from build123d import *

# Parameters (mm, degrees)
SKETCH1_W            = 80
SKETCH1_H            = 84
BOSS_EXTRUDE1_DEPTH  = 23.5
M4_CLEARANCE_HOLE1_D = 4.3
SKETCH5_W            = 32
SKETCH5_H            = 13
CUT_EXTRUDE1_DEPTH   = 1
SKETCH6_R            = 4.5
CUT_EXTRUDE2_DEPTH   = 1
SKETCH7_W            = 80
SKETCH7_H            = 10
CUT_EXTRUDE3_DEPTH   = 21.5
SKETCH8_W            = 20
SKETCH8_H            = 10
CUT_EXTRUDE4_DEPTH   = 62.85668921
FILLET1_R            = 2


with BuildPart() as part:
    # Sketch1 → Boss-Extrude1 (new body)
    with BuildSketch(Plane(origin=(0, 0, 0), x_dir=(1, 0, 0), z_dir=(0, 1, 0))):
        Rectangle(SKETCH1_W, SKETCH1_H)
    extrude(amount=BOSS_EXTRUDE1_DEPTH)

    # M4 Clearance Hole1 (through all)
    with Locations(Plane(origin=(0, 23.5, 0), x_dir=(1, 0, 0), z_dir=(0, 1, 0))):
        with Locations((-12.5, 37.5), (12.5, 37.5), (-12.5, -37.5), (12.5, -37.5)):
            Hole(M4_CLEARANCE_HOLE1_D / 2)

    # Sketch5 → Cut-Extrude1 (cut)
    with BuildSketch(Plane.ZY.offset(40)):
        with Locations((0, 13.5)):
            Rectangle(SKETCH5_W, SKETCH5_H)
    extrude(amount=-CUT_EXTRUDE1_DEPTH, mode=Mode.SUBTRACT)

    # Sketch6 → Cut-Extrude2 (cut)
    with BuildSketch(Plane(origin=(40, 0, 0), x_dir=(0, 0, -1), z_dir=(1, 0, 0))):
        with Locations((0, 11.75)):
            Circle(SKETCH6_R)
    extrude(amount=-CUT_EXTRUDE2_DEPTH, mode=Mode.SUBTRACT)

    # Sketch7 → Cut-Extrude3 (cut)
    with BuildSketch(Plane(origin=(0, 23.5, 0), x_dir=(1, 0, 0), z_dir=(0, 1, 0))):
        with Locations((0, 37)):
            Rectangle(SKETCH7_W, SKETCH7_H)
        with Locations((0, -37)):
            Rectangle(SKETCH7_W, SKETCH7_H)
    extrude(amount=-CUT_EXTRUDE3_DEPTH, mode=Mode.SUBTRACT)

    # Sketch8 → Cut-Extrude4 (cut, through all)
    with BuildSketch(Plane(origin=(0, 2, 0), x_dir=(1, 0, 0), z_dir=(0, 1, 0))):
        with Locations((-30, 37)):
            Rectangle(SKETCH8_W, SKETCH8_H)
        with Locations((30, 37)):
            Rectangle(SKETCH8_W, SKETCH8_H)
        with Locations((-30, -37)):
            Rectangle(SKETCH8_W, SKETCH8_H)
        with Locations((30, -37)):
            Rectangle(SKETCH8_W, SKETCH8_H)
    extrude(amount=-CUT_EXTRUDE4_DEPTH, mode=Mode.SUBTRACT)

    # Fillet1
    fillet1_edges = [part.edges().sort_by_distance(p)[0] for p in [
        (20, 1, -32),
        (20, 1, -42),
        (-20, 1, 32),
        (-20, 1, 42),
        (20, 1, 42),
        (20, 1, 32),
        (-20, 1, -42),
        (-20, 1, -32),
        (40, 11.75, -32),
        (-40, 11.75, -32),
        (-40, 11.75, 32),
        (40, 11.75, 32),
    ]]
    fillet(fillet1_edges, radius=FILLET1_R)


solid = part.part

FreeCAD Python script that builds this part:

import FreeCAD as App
import Part
import Sketcher

V = App.Vector
Q = App.Units.Quantity


def edges_at(feature, points):
    """Names of the edges that pass closest to the given points."""
    edges = feature.Shape.Edges
    near = lambda p: min(range(len(edges)), key=lambda i: edges[i].distToShape(Part.Vertex(*p))[0])
    return sorted({f"Edge{near(p) + 1}" for p in points})


def add_polygon(sketch, points):
    """Adds a closed chain of lines whose ends are joined by coincident constraints."""
    first, n = sketch.GeometryCount, len(points)
    for a, b in zip(points, points[1:] + points[:1]):
        sketch.addGeometry(Part.LineSegment(App.Vector(*a, 0), App.Vector(*b, 0)), False)
    for i in range(n):
        sketch.addConstraint(Sketcher.Constraint("Coincident", first + i, 2, first + (i + 1) % n, 1))

doc = App.newDocument("Part")
body = doc.addObject("PartDesign::Body", "Body")

sketch1 = body.newObject("Sketcher::SketchObject", "Sketch")
sketch1.AttachmentSupport = (doc.getObject("XZ_Plane"), [""])
sketch1.MapMode = "FlatFace"
add_polygon(sketch1, [(-40, -42), (-40, 42), (40, 42), (40, -42)])
sketch1.addConstraint(Sketcher.Constraint("Vertical", 0))
sketch1.addConstraint(Sketcher.Constraint("Horizontal", 1))
sketch1.addConstraint(Sketcher.Constraint("Vertical", 2))
sketch1.addConstraint(Sketcher.Constraint("Horizontal", 3))
sketch1.addConstraint(Sketcher.Constraint("Symmetric", 0, 2, 2, 2, -1, 1))
sketch1.addConstraint(Sketcher.Constraint("DistanceX", 1, 1, 1, 2, Q("80 mm")))
sketch1.addConstraint(Sketcher.Constraint("DistanceY", 0, 1, 0, 2, Q("84 mm")))
pad1 = body.newObject("PartDesign::Pad", "Pad")
pad1.Profile = sketch1
pad1.Length = 23.5
pad1.Reversed = True

sketch2 = body.newObject("Sketcher::SketchObject", "Sketch001")
sketch2.AttachmentSupport = (doc.getObject("XZ_Plane"), [""])
sketch2.MapMode = "FlatFace"
sketch2.AttachmentOffset = App.Placement(V(0, 0, -23.5), App.Rotation())
sketch2.addGeometry(Part.Circle(V(-12.5, -37.5, 0), V(0, 0, 1), 2.15), False)
sketch2.addGeometry(Part.Circle(V(12.5, -37.5, 0), V(0, 0, 1), 2.15), False)
sketch2.addGeometry(Part.Circle(V(-12.5, 37.5, 0), V(0, 0, 1), 2.15), False)
sketch2.addGeometry(Part.Circle(V(12.5, 37.5, 0), V(0, 0, 1), 2.15), False)
sketch2.addConstraint(Sketcher.Constraint("Equal", 0, 1))
sketch2.addConstraint(Sketcher.Constraint("Equal", 1, 2))
sketch2.addConstraint(Sketcher.Constraint("Equal", 2, 3))
sketch2.addConstraint(Sketcher.Constraint("Symmetric", 1, 3, 2, 3, -1, 1))
sketch2.addConstraint(Sketcher.Constraint("Symmetric", 0, 3, 3, 3, -1, 1))
sketch2.addConstraint(Sketcher.Constraint("Symmetric", 0, 3, 1, 3, -2))
sketch2.addConstraint(Sketcher.Constraint("Diameter", 0, Q("4.3 mm")))
sketch2.addConstraint(Sketcher.Constraint("DistanceX", 0, 3, 1, 3, Q("25 mm")))
sketch2.addConstraint(Sketcher.Constraint("DistanceY", 0, 3, 2, 3, Q("75 mm")))
doc.recompute()
hole = body.newObject("PartDesign::Hole", "Hole")
hole.Profile = sketch2
hole.ThreadType = "None"
hole.Diameter = 4.3
hole.DepthType = "ThroughAll"
hole.Reversed = True

sketch3 = body.newObject("Sketcher::SketchObject", "Sketch002")
sketch3.AttachmentSupport = (doc.getObject("YZ_Plane"), [""])
sketch3.MapMode = "FlatFace"
sketch3.AttachmentOffset = App.Placement(V(0, 0, -40), App.Rotation())
add_polygon(sketch3, [(20, -16), (7, -16), (7, 16), (20, 16)])
sketch3.addConstraint(Sketcher.Constraint("Horizontal", 0))
sketch3.addConstraint(Sketcher.Constraint("Vertical", 1))
sketch3.addConstraint(Sketcher.Constraint("Horizontal", 2))
sketch3.addConstraint(Sketcher.Constraint("Vertical", 3))
sketch3.addConstraint(Sketcher.Constraint("DistanceX", 0, 2, 0, 1, Q("13 mm")))
sketch3.addConstraint(Sketcher.Constraint("DistanceY", 1, 1, 1, 2, Q("32 mm")))
sketch3.addConstraint(Sketcher.Constraint("DistanceX", -1, 1, 0, 2, Q("7 mm")))
sketch3.addConstraint(Sketcher.Constraint("DistanceY", 0, 2, -1, 1, Q("16 mm")))
pocket1 = body.newObject("PartDesign::Pocket", "Pocket")
pocket1.Profile = sketch3
pocket1.Length = 1
pocket1.Reversed = True

sketch4 = body.newObject("Sketcher::SketchObject", "Sketch003")
sketch4.AttachmentSupport = (doc.getObject("YZ_Plane"), [""])
sketch4.MapMode = "FlatFace"
sketch4.AttachmentOffset = App.Placement(V(0, 0, 40), App.Rotation())
sketch4.addGeometry(Part.Circle(V(11.75, 0, 0), V(0, 0, 1), 4.5), False)
sketch4.addConstraint(Sketcher.Constraint("PointOnObject", 0, 3, -1))
sketch4.addConstraint(Sketcher.Constraint("Diameter", 0, Q("9 mm")))
sketch4.addConstraint(Sketcher.Constraint("DistanceX", -1, 1, 0, 3, Q("11.75 mm")))
pocket2 = body.newObject("PartDesign::Pocket", "Pocket001")
pocket2.Profile = sketch4
pocket2.Length = 1

sketch5 = body.newObject("Sketcher::SketchObject", "Sketch004")
sketch5.AttachmentSupport = (doc.getObject("XZ_Plane"), [""])
sketch5.MapMode = "FlatFace"
sketch5.AttachmentOffset = App.Placement(V(0, 0, -23.5), App.Rotation())
add_polygon(sketch5, [(-40, -42), (-40, -32), (40, -32), (40, -42)])
add_polygon(sketch5, [(-40, 32), (-40, 42), (40, 42), (40, 32)])
sketch5.addConstraint(Sketcher.Constraint("Vertical", 0))
sketch5.addConstraint(Sketcher.Constraint("Horizontal", 1))
sketch5.addConstraint(Sketcher.Constraint("Vertical", 2))
sketch5.addConstraint(Sketcher.Constraint("Horizontal", 3))
sketch5.addConstraint(Sketcher.Constraint("Vertical", 4))
sketch5.addConstraint(Sketcher.Constraint("Horizontal", 5))
sketch5.addConstraint(Sketcher.Constraint("Vertical", 6))
sketch5.addConstraint(Sketcher.Constraint("Horizontal", 7))
sketch5.addConstraint(Sketcher.Constraint("Symmetric", 2, 2, 4, 2, -1, 1))
sketch5.addConstraint(Sketcher.Constraint("Symmetric", 0, 2, 6, 2, -1, 1))
sketch5.addConstraint(Sketcher.Constraint("Vertical", 3, 2, 4, 2))
sketch5.addConstraint(Sketcher.Constraint("DistanceX", 1, 1, 1, 2, Q("80 mm")))
sketch5.addConstraint(Sketcher.Constraint("DistanceY", 0, 1, 0, 2, Q("10 mm")))
sketch5.addConstraint(Sketcher.Constraint("DistanceY", 0, 2, -1, 1, Q("32 mm")))
pocket3 = body.newObject("PartDesign::Pocket", "Pocket002")
pocket3.Profile = sketch5
pocket3.Length = 21.5
pocket3.Reversed = True

sketch6 = body.newObject("Sketcher::SketchObject", "Sketch005")
sketch6.AttachmentSupport = (doc.getObject("XZ_Plane"), [""])
sketch6.MapMode = "FlatFace"
sketch6.AttachmentOffset = App.Placement(V(0, 0, -2), App.Rotation())
add_polygon(sketch6, [(-40, -42), (-40, -32), (-20, -32), (-20, -42)])
add_polygon(sketch6, [(20, -42), (20, -32), (40, -32), (40, -42)])
add_polygon(sketch6, [(-40, 32), (-40, 42), (-20, 42), (-20, 32)])
add_polygon(sketch6, [(20, 32), (20, 42), (40, 42), (40, 32)])
sketch6.addConstraint(Sketcher.Constraint("Vertical", 0))
sketch6.addConstraint(Sketcher.Constraint("Horizontal", 1))
sketch6.addConstraint(Sketcher.Constraint("Vertical", 2))
sketch6.addConstraint(Sketcher.Constraint("Horizontal", 3))
sketch6.addConstraint(Sketcher.Constraint("Vertical", 4))
sketch6.addConstraint(Sketcher.Constraint("Horizontal", 5))
sketch6.addConstraint(Sketcher.Constraint("Vertical", 6))
sketch6.addConstraint(Sketcher.Constraint("Horizontal", 7))
sketch6.addConstraint(Sketcher.Constraint("Vertical", 8))
sketch6.addConstraint(Sketcher.Constraint("Horizontal", 9))
sketch6.addConstraint(Sketcher.Constraint("Vertical", 10))
sketch6.addConstraint(Sketcher.Constraint("Horizontal", 11))
sketch6.addConstraint(Sketcher.Constraint("Vertical", 12))
sketch6.addConstraint(Sketcher.Constraint("Horizontal", 13))
sketch6.addConstraint(Sketcher.Constraint("Vertical", 14))
sketch6.addConstraint(Sketcher.Constraint("Horizontal", 15))
sketch6.addConstraint(Sketcher.Constraint("Symmetric", 6, 2, 8, 2, -1, 1))
sketch6.addConstraint(Sketcher.Constraint("Symmetric", 4, 2, 10, 2, -1, 1))
sketch6.addConstraint(Sketcher.Constraint("Symmetric", 2, 2, 12, 2, -1, 1))
sketch6.addConstraint(Sketcher.Constraint("Symmetric", 0, 2, 14, 2, -1, 1))
sketch6.addConstraint(Sketcher.Constraint("Symmetric", 1, 2, 4, 2, -2))
sketch6.addConstraint(Sketcher.Constraint("Symmetric", 3, 2, 6, 2, -2))
sketch6.addConstraint(Sketcher.Constraint("DistanceX", 1, 1, 1, 2, Q("20 mm")))
sketch6.addConstraint(Sketcher.Constraint("DistanceY", 0, 1, 0, 2, Q("10 mm")))
sketch6.addConstraint(Sketcher.Constraint("DistanceX", 0, 2, -1, 1, Q("40 mm")))
sketch6.addConstraint(Sketcher.Constraint("DistanceY", 0, 2, -1, 1, Q("32 mm")))
pocket4 = body.newObject("PartDesign::Pocket", "Pocket003")
pocket4.Profile = sketch6
pocket4.Type = "ThroughAll"
pocket4.Reversed = True
doc.recompute()

fillet = body.newObject("PartDesign::Fillet", "Fillet")
fillet.Base = (pocket4, edges_at(pocket4, [
    (20, 1, -32),
    (20, 1, -42),
    (-20, 1, 32),
    (-20, 1, 42),
    (20, 1, 42),
    (20, 1, 32),
    (-20, 1, -42),
    (-20, 1, -32),
    (40, 11.75, -32),
    (-40, 11.75, -32),
    (-40, 11.75, 32),
    (40, 11.75, 32),
]))
fillet.Radius = 2

doc.recompute()
